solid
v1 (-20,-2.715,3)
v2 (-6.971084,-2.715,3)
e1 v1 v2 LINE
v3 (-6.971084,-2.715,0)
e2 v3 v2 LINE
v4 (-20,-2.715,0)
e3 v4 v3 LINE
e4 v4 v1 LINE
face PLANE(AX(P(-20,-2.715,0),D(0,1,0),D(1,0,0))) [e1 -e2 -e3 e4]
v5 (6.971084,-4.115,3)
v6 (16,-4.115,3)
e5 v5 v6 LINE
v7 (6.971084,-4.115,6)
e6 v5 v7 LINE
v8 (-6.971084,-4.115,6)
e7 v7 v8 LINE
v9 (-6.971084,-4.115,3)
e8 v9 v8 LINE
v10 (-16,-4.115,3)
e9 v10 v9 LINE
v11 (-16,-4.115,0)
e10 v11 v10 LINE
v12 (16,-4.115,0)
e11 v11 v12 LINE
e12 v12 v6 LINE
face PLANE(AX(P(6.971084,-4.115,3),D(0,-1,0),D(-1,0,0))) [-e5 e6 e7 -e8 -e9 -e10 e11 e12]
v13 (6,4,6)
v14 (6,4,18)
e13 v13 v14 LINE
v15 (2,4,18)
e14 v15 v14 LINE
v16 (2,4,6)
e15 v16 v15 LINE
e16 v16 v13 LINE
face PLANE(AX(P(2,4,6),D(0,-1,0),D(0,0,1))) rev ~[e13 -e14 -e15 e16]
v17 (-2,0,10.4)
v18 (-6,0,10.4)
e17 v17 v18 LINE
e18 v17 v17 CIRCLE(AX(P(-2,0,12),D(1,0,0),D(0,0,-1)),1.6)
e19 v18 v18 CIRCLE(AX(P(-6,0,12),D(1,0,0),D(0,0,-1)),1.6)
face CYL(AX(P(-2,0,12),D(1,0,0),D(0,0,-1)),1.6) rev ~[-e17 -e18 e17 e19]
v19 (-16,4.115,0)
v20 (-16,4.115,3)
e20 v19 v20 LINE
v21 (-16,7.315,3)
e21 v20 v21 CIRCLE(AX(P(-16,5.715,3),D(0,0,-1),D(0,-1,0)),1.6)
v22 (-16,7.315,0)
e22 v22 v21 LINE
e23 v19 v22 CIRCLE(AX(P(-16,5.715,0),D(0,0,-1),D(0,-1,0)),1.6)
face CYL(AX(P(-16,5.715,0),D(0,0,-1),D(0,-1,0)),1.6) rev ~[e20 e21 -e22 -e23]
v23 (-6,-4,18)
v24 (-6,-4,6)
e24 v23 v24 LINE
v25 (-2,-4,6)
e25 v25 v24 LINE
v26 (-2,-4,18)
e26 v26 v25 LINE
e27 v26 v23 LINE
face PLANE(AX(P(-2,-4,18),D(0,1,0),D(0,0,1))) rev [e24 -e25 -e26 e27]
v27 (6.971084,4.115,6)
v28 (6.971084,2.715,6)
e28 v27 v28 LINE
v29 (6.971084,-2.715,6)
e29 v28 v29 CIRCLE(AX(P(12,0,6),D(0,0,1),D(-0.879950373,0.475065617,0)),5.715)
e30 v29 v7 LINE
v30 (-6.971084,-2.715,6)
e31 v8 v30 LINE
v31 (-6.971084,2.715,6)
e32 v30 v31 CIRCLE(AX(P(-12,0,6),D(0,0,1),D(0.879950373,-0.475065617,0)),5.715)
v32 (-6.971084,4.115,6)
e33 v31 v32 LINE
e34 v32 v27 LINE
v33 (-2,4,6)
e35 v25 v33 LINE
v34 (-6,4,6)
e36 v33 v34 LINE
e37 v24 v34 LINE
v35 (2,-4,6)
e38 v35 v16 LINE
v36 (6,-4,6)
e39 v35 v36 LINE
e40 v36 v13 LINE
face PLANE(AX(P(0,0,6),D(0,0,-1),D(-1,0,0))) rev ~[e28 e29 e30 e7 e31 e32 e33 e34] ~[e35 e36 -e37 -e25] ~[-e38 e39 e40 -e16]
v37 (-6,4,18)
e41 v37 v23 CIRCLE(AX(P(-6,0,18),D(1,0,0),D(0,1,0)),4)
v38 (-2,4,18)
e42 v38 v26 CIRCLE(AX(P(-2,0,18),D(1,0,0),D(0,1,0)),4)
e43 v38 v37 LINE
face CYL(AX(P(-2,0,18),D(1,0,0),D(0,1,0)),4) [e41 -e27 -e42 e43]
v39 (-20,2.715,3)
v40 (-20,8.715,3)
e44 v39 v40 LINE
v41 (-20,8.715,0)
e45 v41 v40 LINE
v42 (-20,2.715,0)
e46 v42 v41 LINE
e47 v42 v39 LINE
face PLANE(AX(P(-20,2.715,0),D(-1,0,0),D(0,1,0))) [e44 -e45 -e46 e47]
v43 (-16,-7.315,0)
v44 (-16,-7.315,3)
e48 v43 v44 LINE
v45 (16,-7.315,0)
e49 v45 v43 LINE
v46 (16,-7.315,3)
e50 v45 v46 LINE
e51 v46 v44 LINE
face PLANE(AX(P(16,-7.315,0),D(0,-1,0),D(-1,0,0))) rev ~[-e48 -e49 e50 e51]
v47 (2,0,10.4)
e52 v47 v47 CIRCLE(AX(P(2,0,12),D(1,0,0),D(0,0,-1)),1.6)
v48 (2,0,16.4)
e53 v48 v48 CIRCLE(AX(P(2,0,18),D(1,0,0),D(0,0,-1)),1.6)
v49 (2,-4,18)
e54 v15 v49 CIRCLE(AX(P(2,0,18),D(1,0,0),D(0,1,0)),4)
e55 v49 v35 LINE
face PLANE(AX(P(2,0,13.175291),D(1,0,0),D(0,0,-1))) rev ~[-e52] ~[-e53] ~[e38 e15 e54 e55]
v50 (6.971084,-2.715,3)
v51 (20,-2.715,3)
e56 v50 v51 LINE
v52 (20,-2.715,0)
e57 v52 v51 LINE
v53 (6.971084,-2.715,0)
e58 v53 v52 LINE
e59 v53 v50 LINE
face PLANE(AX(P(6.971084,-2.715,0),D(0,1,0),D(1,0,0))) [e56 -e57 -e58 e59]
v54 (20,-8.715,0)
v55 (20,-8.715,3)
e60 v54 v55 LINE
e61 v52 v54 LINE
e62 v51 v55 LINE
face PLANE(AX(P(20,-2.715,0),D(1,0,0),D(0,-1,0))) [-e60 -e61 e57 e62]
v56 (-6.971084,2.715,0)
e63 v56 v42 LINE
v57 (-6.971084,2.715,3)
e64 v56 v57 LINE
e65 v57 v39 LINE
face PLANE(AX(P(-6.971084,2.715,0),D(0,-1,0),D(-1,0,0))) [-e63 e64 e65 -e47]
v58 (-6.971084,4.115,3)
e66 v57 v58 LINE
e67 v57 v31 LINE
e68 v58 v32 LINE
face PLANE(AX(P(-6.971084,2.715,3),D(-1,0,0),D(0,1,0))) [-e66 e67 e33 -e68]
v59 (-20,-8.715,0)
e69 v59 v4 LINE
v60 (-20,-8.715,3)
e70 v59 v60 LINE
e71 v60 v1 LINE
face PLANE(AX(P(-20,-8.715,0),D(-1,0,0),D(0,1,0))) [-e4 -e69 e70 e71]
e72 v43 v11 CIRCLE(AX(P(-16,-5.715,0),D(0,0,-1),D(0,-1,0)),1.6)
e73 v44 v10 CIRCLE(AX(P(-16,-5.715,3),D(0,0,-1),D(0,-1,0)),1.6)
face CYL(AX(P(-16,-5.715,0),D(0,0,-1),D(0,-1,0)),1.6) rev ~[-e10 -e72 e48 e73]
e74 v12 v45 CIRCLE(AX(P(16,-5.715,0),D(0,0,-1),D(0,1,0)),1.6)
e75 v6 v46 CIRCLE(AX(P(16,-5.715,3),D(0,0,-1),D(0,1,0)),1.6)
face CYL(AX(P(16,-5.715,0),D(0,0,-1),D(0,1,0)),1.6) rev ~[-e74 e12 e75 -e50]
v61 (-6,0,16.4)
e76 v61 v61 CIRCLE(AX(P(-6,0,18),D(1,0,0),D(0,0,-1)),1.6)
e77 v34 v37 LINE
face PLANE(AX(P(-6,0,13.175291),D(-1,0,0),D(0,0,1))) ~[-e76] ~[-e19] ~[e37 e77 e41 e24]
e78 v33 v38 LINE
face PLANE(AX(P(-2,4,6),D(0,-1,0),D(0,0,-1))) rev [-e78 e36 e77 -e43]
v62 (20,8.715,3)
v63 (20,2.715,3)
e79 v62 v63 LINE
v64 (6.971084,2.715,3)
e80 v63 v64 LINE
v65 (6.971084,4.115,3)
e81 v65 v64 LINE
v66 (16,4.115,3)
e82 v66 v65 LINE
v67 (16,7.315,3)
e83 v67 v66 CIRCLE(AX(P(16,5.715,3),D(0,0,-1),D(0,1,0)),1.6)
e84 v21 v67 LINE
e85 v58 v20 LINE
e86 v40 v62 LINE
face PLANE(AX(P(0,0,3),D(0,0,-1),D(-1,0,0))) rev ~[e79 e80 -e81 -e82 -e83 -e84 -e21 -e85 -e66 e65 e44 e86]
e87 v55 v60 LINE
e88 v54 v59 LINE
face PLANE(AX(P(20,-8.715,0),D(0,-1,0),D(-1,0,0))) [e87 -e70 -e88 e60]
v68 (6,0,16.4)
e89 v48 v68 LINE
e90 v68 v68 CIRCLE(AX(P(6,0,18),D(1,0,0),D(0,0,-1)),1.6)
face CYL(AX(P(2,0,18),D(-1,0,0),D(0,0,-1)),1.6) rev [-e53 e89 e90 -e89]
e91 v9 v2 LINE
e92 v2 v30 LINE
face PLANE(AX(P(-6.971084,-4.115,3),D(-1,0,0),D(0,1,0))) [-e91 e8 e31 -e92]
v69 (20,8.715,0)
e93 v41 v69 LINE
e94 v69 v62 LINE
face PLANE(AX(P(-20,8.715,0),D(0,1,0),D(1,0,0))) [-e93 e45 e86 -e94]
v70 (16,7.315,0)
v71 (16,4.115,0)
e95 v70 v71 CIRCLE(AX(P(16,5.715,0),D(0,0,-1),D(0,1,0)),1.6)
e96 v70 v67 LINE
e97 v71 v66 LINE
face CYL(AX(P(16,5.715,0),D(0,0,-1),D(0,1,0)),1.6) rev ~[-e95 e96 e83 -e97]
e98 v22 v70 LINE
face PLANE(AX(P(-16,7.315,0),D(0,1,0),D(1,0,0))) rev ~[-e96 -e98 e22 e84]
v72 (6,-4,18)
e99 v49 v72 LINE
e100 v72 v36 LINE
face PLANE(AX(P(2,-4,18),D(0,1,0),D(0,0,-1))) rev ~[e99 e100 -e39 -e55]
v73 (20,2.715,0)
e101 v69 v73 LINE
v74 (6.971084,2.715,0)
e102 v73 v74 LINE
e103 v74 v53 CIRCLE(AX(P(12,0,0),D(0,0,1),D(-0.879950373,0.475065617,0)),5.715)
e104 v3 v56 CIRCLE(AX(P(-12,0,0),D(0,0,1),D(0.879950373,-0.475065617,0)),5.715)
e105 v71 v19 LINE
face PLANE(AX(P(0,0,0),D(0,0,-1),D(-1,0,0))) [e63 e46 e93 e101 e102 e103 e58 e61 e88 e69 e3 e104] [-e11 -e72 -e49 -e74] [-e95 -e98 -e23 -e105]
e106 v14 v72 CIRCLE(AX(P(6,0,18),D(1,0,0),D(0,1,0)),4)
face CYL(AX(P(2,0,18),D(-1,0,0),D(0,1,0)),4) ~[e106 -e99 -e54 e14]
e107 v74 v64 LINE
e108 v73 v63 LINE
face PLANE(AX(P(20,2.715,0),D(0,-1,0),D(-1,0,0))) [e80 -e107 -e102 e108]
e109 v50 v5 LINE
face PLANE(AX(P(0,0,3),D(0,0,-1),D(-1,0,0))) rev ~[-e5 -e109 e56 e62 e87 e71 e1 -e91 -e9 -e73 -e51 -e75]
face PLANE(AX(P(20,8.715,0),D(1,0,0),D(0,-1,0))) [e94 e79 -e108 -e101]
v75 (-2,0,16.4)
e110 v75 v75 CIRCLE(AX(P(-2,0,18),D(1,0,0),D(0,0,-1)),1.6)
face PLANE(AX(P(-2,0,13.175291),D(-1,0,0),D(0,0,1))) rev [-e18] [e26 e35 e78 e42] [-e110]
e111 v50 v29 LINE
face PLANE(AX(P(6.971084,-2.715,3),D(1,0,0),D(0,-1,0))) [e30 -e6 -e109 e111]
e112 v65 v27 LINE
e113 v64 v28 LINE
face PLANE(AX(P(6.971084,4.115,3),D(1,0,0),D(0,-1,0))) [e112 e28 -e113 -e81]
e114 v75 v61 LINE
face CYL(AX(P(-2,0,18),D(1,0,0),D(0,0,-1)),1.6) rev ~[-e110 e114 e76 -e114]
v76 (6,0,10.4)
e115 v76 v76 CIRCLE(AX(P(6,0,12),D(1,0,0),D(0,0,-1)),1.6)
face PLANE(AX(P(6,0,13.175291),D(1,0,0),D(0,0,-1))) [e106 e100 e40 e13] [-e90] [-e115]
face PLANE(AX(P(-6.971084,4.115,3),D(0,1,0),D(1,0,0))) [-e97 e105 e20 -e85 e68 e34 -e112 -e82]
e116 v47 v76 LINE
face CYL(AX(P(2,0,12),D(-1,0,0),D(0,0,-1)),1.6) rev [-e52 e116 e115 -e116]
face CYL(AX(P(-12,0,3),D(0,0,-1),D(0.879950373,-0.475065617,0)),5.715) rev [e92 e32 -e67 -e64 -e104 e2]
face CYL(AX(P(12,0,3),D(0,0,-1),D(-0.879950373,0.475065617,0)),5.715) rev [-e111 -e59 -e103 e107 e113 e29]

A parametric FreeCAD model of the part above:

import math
import FreeCAD as App
import Part
import Sketcher
Q = App.Units.Quantity

doc = App.newDocument("Part")
body = doc.addObject("PartDesign::Body", "Body")

sketch1 = doc.addObject("Sketcher::SketchObject", "Sketch")
body.addObject(sketch1)
sketch1.AttachmentSupport = (doc.XY_Plane, [""])
sketch1.MapMode = "FlatFace"
sketch1.addGeometry([
    Part.LineSegment(App.Vector(20, 2.7, 0), App.Vector(20, 8.7, 0)),
    Part.LineSegment(App.Vector(20, 8.7, 0), App.Vector(-20, 8.7, 0)),
    Part.LineSegment(App.Vector(-20, 8.7, 0), App.Vector(-20, 2.7, 0)),
    Part.LineSegment(App.Vector(-20, 2.7, 0), App.Vector(-7, 2.7, 0)),
    Part.ArcOfCircle(Part.Circle(App.Vector(-12, 0, 0), App.Vector(0, 0, 1), 5.7), math.radians(-28), math.radians(28)),
    Part.LineSegment(App.Vector(-7, -2.7, 0), App.Vector(-20, -2.7, 0)),
    Part.LineSegment(App.Vector(-20, -2.7, 0), App.Vector(-20, -8.7, 0)),
    Part.LineSegment(App.Vector(-20, -8.7, 0), App.Vector(20, -8.7, 0)),
    Part.LineSegment(App.Vector(20, -8.7, 0), App.Vector(20, -2.7, 0)),
    Part.LineSegment(App.Vector(20, -2.7, 0), App.Vector(7, -2.7, 0)),
    Part.ArcOfCircle(Part.Circle(App.Vector(12, 0, 0), App.Vector(0, 0, 1), 5.7), math.radians(152), math.radians(208)),
    Part.LineSegment(App.Vector(7, 2.7, 0), App.Vector(20, 2.7, 0)),
    Part.LineSegment(App.Vector(16, -7.3, 0), App.Vector(-16, -7.3, 0)),
    Part.ArcOfCircle(Part.Circle(App.Vector(-16, -5.7, 0), App.Vector(0, 0, 1), 1.6), math.radians(90), math.radians(270)),
    Part.LineSegment(App.Vector(-16, -4.1, 0), App.Vector(16, -4.1, 0)),
    Part.ArcOfCircle(Part.Circle(App.Vector(16, -5.7, 0), App.Vector(0, 0, 1), 1.6), math.radians(-90), math.radians(90)),
    Part.LineSegment(App.Vector(16, 4.1, 0), App.Vector(-16, 4.1, 0)),
    Part.ArcOfCircle(Part.Circle(App.Vector(-16, 5.7, 0), App.Vector(0, 0, 1), 1.6), math.radians(90), math.radians(270)),
    Part.LineSegment(App.Vector(-16, 7.3, 0), App.Vector(16, 7.3, 0)),
    Part.ArcOfCircle(Part.Circle(App.Vector(16, 5.7, 0), App.Vector(0, 0, 1), 1.6), math.radians(-90), math.radians(90)),
], False)
sketch1.addConstraint([
    Sketcher.Constraint("Coincident", 0, 2, 1, 1),
    Sketcher.Constraint("Coincident", 1, 2, 2, 1),
    Sketcher.Constraint("Coincident", 2, 2, 3, 1),
    Sketcher.Constraint("Coincident", 3, 2, 4, 2),
    Sketcher.Constraint("Coincident", 4, 1, 5, 1),
    Sketcher.Constraint("Coincident", 5, 2, 6, 1),
    Sketcher.Constraint("Coincident", 6, 2, 7, 1),
    Sketcher.Constraint("Coincident", 7, 2, 8, 1),
    Sketcher.Constraint("Coincident", 8, 2, 9, 1),
    Sketcher.Constraint("Coincident", 9, 2, 10, 2),
    Sketcher.Constraint("Coincident", 10, 1, 11, 1),
    Sketcher.Constraint("Coincident", 11, 2, 0, 1),
    Sketcher.Constraint("Tangent", 12, 2, 13, 2),
    Sketcher.Constraint("Tangent", 13, 1, 14, 1),
    Sketcher.Constraint("Tangent", 14, 2, 15, 2),
    Sketcher.Constraint("Tangent", 15, 1, 12, 1),
    Sketcher.Constraint("Tangent", 16, 2, 17, 2),
    Sketcher.Constraint("Tangent", 17, 1, 18, 1),
    Sketcher.Constraint("Tangent", 18, 2, 19, 2),
    Sketcher.Constraint("Tangent", 19, 1, 16, 1),
    Sketcher.Constraint("Vertical", 0),
    Sketcher.Constraint("Horizontal", 1),
    Sketcher.Constraint("Vertical", 2),
    Sketcher.Constraint("Horizontal", 3),
    Sketcher.Constraint("Horizontal", 5),
    Sketcher.Constraint("Vertical", 6),
    Sketcher.Constraint("Horizontal", 7),
    Sketcher.Constraint("Vertical", 8),
    Sketcher.Constraint("Horizontal", 9),
    Sketcher.Constraint("Horizontal", 11),
    Sketcher.Constraint("Horizontal", 12),
    Sketcher.Constraint("Horizontal", 14),
    Sketcher.Constraint("Horizontal", 16),
    Sketcher.Constraint("Horizontal", 18),
    Sketcher.Constraint("Equal", 4, 10),
    Sketcher.Constraint("Equal", 15, 17),
    Sketcher.Constraint("Symmetric", 4, 3, 10, 3, -1, 1),
    Sketcher.Constraint("Symmetric", 15, 3, 17, 3, -1, 1),
    Sketcher.Constraint("Symmetric", 0, 2, 6, 2, -1, 1),
    Sketcher.Constraint("Symmetric", 2, 2, 8, 2, -1, 1),
    Sketcher.Constraint("Symmetric", 5, 2, 8, 2, -2),
    Sketcher.Constraint("Symmetric", 3, 2, 10, 1, -2),
    Sketcher.Constraint("Vertical", 13, 3, 17, 3),
    Sketcher.Constraint("Vertical", 15, 3, 19, 3),
    Sketcher.Constraint("Radius", 13, Q("1.6 mm")),
    Sketcher.Constraint("DistanceX", 1, 2, 1, 1, Q("40 mm")),
    Sketcher.Constraint("DistanceX", 12, 2, 12, 1, Q("32 mm")),
    Sketcher.Constraint("DistanceY", 0, 1, 0, 2, Q("6 mm")),
    Sketcher.Constraint("DistanceX", 4, 3, -1, 1, Q("12 mm")),
    Sketcher.Constraint("Radius", 4, Q("5.715 mm")),
    Sketcher.Constraint("DistanceY", 19, 3, 0, 2, Q("3 mm")),
    Sketcher.Constraint("DistanceY", 13, 3, 17, 3, Q("11.43 mm")),
])
pad1 = doc.addObject("PartDesign::Pad", "Pad")
body.addObject(pad1)
pad1.Profile = sketch1
pad1.Length = 3

sketch2 = doc.addObject("Sketcher::SketchObject", "Sketch001")
body.addObject(sketch2)
sketch2.AttachmentSupport = (doc.XY_Plane, [""])
sketch2.MapMode = "FlatFace"
sketch2.AttachmentOffset = App.Placement(App.Vector(0, 0, 3), App.Rotation())
sketch2.addGeometry([
    Part.LineSegment(App.Vector(-7, 4.1, 0), App.Vector(-7, 2.7, 0)),
    Part.ArcOfCircle(Part.Circle(App.Vector(-12, 0, 0), App.Vector(0, 0, 1), 5.7), math.radians(-28), math.radians(28)),
    Part.LineSegment(App.Vector(-7, -2.7, 0), App.Vector(-7, -4.1, 0)),
    Part.LineSegment(App.Vector(-7, -4.1, 0), App.Vector(7, -4.1, 0)),
    Part.LineSegment(App.Vector(7, -4.1, 0), App.Vector(7, -2.7, 0)),
    Part.ArcOfCircle(Part.Circle(App.Vector(12, 0, 0), App.Vector(0, 0, 1), 5.7), math.radians(152), math.radians(208)),
    Part.LineSegment(App.Vector(7, 2.7, 0), App.Vector(7, 4.1, 0)),
    Part.LineSegment(App.Vector(7, 4.1, 0), App.Vector(-7, 4.1, 0)),
], False)
sketch2.addConstraint([
    Sketcher.Constraint("Coincident", 0, 2, 1, 2),
    Sketcher.Constraint("Coincident", 1, 1, 2, 1),
    Sketcher.Constraint("Coincident", 2, 2, 3, 1),
    Sketcher.Constraint("Coincident", 3, 2, 4, 1),
    Sketcher.Constraint("Coincident", 4, 2, 5, 2),
    Sketcher.Constraint("Coincident", 5, 1, 6, 1),
    Sketcher.Constraint("Coincident", 6, 2, 7, 1),
    Sketcher.Constraint("Coincident", 7, 2, 0, 1),
    Sketcher.Constraint("Vertical", 0),
    Sketcher.Constraint("Vertical", 2),
    Sketcher.Constraint("Horizontal", 3),
    Sketcher.Constraint("Vertical", 4),
    Sketcher.Constraint("Vertical", 6),
    Sketcher.Constraint("Horizontal", 7),
    Sketcher.Constraint("Equal", 1, 5),
    Sketcher.Constraint("Symmetric", 1, 3, 5, 3, -1, 1),
    Sketcher.Constraint("Symmetric", 2, 2, 6, 2, -1, 1),
    Sketcher.Constraint("Symmetric", 1, 1, 4, 2, -2),
    Sketcher.Constraint("Horizontal", 0, 2, 5, 1),
    Sketcher.Constraint("DistanceY", 0, 2, 0, 1, Q("1.4 mm")),
    Sketcher.Constraint("DistanceX", 1, 3, -1, 1, Q("12 mm")),
    Sketcher.Constraint("Radius", 1, Q("5.715 mm")),
    Sketcher.Constraint("DistanceY", 1, 1, 0, 2, Q("5.43 mm")),
])
pad2 = doc.addObject("PartDesign::Pad", "Pad001")
body.addObject(pad2)
pad2.Profile = sketch2
pad2.Length = 3

sketch3 = doc.addObject("Sketcher::SketchObject", "Sketch002")
body.addObject(sketch3)
sketch3.AttachmentSupport = (doc.YZ_Plane, [""])
sketch3.MapMode = "FlatFace"
sketch3.AttachmentOffset = App.Placement(App.Vector(0, 0, 2), App.Rotation())
sketch3.addGeometry([
    Part.LineSegment(App.Vector(4, 6, 0), App.Vector(4, 18, 0)),
    Part.ArcOfCircle(Part.Circle(App.Vector(0, 18, 0), App.Vector(0, 0, 1), 4), math.radians(0), math.radians(180)),
    Part.LineSegment(App.Vector(-4, 18, 0), App.Vector(-4, 6, 0)),
    Part.LineSegment(App.Vector(-4, 6, 0), App.Vector(4, 6, 0)),
    Part.Circle(App.Vector(0, 18, 0), App.Vector(0, 0, 1), 1.6),
    Part.Circle(App.Vector(0, 12, 0), App.Vector(0, 0, 1), 1.6),
], False)
sketch3.addConstraint([
    Sketcher.Constraint("Tangent", 0, 2, 1, 1),
    Sketcher.Constraint("Tangent", 1, 2, 2, 1),
    Sketcher.Constraint("Coincident", 2, 2, 3, 1),
    Sketcher.Constraint("Coincident", 3, 2, 0, 1),
    Sketcher.Constraint("Vertical", 0),
    Sketcher.Constraint("Vertical", 2),
    Sketcher.Constraint("Horizontal", 3),
    Sketcher.Constraint("Coincident", 4, 3, 1, 3),
    Sketcher.Constraint("Equal", 4, 5),
    Sketcher.Constraint("PointOnObject", 1, 3, -2),
    Sketcher.Constraint("PointOnObject", 5, 3, -2),
    Sketcher.Constraint("Radius", 1, Q("4 mm")),
    Sketcher.Constraint("Diameter", 4, Q("3.2 mm")),
    Sketcher.Constraint("DistanceY", 0, 1, 0, 2, Q("12 mm")),
    Sketcher.Constraint("DistanceY", -1, 1, 1, 3, Q("18 mm")),
    Sketcher.Constraint("DistanceY", -1, 1, 5, 3, Q("12 mm")),
])
pad3 = doc.addObject("PartDesign::Pad", "Pad002")
body.addObject(pad3)
pad3.Profile = sketch3
pad3.Length = 4
doc.recompute()

mirrored = doc.addObject("PartDesign::Mirrored", "Mirrored")
body.addObject(mirrored)
mirrored.Originals = [pad3]
mirrored.MirrorPlane = (doc.YZ_Plane, [""])
body.Tip = mirrored

doc.recompute()
